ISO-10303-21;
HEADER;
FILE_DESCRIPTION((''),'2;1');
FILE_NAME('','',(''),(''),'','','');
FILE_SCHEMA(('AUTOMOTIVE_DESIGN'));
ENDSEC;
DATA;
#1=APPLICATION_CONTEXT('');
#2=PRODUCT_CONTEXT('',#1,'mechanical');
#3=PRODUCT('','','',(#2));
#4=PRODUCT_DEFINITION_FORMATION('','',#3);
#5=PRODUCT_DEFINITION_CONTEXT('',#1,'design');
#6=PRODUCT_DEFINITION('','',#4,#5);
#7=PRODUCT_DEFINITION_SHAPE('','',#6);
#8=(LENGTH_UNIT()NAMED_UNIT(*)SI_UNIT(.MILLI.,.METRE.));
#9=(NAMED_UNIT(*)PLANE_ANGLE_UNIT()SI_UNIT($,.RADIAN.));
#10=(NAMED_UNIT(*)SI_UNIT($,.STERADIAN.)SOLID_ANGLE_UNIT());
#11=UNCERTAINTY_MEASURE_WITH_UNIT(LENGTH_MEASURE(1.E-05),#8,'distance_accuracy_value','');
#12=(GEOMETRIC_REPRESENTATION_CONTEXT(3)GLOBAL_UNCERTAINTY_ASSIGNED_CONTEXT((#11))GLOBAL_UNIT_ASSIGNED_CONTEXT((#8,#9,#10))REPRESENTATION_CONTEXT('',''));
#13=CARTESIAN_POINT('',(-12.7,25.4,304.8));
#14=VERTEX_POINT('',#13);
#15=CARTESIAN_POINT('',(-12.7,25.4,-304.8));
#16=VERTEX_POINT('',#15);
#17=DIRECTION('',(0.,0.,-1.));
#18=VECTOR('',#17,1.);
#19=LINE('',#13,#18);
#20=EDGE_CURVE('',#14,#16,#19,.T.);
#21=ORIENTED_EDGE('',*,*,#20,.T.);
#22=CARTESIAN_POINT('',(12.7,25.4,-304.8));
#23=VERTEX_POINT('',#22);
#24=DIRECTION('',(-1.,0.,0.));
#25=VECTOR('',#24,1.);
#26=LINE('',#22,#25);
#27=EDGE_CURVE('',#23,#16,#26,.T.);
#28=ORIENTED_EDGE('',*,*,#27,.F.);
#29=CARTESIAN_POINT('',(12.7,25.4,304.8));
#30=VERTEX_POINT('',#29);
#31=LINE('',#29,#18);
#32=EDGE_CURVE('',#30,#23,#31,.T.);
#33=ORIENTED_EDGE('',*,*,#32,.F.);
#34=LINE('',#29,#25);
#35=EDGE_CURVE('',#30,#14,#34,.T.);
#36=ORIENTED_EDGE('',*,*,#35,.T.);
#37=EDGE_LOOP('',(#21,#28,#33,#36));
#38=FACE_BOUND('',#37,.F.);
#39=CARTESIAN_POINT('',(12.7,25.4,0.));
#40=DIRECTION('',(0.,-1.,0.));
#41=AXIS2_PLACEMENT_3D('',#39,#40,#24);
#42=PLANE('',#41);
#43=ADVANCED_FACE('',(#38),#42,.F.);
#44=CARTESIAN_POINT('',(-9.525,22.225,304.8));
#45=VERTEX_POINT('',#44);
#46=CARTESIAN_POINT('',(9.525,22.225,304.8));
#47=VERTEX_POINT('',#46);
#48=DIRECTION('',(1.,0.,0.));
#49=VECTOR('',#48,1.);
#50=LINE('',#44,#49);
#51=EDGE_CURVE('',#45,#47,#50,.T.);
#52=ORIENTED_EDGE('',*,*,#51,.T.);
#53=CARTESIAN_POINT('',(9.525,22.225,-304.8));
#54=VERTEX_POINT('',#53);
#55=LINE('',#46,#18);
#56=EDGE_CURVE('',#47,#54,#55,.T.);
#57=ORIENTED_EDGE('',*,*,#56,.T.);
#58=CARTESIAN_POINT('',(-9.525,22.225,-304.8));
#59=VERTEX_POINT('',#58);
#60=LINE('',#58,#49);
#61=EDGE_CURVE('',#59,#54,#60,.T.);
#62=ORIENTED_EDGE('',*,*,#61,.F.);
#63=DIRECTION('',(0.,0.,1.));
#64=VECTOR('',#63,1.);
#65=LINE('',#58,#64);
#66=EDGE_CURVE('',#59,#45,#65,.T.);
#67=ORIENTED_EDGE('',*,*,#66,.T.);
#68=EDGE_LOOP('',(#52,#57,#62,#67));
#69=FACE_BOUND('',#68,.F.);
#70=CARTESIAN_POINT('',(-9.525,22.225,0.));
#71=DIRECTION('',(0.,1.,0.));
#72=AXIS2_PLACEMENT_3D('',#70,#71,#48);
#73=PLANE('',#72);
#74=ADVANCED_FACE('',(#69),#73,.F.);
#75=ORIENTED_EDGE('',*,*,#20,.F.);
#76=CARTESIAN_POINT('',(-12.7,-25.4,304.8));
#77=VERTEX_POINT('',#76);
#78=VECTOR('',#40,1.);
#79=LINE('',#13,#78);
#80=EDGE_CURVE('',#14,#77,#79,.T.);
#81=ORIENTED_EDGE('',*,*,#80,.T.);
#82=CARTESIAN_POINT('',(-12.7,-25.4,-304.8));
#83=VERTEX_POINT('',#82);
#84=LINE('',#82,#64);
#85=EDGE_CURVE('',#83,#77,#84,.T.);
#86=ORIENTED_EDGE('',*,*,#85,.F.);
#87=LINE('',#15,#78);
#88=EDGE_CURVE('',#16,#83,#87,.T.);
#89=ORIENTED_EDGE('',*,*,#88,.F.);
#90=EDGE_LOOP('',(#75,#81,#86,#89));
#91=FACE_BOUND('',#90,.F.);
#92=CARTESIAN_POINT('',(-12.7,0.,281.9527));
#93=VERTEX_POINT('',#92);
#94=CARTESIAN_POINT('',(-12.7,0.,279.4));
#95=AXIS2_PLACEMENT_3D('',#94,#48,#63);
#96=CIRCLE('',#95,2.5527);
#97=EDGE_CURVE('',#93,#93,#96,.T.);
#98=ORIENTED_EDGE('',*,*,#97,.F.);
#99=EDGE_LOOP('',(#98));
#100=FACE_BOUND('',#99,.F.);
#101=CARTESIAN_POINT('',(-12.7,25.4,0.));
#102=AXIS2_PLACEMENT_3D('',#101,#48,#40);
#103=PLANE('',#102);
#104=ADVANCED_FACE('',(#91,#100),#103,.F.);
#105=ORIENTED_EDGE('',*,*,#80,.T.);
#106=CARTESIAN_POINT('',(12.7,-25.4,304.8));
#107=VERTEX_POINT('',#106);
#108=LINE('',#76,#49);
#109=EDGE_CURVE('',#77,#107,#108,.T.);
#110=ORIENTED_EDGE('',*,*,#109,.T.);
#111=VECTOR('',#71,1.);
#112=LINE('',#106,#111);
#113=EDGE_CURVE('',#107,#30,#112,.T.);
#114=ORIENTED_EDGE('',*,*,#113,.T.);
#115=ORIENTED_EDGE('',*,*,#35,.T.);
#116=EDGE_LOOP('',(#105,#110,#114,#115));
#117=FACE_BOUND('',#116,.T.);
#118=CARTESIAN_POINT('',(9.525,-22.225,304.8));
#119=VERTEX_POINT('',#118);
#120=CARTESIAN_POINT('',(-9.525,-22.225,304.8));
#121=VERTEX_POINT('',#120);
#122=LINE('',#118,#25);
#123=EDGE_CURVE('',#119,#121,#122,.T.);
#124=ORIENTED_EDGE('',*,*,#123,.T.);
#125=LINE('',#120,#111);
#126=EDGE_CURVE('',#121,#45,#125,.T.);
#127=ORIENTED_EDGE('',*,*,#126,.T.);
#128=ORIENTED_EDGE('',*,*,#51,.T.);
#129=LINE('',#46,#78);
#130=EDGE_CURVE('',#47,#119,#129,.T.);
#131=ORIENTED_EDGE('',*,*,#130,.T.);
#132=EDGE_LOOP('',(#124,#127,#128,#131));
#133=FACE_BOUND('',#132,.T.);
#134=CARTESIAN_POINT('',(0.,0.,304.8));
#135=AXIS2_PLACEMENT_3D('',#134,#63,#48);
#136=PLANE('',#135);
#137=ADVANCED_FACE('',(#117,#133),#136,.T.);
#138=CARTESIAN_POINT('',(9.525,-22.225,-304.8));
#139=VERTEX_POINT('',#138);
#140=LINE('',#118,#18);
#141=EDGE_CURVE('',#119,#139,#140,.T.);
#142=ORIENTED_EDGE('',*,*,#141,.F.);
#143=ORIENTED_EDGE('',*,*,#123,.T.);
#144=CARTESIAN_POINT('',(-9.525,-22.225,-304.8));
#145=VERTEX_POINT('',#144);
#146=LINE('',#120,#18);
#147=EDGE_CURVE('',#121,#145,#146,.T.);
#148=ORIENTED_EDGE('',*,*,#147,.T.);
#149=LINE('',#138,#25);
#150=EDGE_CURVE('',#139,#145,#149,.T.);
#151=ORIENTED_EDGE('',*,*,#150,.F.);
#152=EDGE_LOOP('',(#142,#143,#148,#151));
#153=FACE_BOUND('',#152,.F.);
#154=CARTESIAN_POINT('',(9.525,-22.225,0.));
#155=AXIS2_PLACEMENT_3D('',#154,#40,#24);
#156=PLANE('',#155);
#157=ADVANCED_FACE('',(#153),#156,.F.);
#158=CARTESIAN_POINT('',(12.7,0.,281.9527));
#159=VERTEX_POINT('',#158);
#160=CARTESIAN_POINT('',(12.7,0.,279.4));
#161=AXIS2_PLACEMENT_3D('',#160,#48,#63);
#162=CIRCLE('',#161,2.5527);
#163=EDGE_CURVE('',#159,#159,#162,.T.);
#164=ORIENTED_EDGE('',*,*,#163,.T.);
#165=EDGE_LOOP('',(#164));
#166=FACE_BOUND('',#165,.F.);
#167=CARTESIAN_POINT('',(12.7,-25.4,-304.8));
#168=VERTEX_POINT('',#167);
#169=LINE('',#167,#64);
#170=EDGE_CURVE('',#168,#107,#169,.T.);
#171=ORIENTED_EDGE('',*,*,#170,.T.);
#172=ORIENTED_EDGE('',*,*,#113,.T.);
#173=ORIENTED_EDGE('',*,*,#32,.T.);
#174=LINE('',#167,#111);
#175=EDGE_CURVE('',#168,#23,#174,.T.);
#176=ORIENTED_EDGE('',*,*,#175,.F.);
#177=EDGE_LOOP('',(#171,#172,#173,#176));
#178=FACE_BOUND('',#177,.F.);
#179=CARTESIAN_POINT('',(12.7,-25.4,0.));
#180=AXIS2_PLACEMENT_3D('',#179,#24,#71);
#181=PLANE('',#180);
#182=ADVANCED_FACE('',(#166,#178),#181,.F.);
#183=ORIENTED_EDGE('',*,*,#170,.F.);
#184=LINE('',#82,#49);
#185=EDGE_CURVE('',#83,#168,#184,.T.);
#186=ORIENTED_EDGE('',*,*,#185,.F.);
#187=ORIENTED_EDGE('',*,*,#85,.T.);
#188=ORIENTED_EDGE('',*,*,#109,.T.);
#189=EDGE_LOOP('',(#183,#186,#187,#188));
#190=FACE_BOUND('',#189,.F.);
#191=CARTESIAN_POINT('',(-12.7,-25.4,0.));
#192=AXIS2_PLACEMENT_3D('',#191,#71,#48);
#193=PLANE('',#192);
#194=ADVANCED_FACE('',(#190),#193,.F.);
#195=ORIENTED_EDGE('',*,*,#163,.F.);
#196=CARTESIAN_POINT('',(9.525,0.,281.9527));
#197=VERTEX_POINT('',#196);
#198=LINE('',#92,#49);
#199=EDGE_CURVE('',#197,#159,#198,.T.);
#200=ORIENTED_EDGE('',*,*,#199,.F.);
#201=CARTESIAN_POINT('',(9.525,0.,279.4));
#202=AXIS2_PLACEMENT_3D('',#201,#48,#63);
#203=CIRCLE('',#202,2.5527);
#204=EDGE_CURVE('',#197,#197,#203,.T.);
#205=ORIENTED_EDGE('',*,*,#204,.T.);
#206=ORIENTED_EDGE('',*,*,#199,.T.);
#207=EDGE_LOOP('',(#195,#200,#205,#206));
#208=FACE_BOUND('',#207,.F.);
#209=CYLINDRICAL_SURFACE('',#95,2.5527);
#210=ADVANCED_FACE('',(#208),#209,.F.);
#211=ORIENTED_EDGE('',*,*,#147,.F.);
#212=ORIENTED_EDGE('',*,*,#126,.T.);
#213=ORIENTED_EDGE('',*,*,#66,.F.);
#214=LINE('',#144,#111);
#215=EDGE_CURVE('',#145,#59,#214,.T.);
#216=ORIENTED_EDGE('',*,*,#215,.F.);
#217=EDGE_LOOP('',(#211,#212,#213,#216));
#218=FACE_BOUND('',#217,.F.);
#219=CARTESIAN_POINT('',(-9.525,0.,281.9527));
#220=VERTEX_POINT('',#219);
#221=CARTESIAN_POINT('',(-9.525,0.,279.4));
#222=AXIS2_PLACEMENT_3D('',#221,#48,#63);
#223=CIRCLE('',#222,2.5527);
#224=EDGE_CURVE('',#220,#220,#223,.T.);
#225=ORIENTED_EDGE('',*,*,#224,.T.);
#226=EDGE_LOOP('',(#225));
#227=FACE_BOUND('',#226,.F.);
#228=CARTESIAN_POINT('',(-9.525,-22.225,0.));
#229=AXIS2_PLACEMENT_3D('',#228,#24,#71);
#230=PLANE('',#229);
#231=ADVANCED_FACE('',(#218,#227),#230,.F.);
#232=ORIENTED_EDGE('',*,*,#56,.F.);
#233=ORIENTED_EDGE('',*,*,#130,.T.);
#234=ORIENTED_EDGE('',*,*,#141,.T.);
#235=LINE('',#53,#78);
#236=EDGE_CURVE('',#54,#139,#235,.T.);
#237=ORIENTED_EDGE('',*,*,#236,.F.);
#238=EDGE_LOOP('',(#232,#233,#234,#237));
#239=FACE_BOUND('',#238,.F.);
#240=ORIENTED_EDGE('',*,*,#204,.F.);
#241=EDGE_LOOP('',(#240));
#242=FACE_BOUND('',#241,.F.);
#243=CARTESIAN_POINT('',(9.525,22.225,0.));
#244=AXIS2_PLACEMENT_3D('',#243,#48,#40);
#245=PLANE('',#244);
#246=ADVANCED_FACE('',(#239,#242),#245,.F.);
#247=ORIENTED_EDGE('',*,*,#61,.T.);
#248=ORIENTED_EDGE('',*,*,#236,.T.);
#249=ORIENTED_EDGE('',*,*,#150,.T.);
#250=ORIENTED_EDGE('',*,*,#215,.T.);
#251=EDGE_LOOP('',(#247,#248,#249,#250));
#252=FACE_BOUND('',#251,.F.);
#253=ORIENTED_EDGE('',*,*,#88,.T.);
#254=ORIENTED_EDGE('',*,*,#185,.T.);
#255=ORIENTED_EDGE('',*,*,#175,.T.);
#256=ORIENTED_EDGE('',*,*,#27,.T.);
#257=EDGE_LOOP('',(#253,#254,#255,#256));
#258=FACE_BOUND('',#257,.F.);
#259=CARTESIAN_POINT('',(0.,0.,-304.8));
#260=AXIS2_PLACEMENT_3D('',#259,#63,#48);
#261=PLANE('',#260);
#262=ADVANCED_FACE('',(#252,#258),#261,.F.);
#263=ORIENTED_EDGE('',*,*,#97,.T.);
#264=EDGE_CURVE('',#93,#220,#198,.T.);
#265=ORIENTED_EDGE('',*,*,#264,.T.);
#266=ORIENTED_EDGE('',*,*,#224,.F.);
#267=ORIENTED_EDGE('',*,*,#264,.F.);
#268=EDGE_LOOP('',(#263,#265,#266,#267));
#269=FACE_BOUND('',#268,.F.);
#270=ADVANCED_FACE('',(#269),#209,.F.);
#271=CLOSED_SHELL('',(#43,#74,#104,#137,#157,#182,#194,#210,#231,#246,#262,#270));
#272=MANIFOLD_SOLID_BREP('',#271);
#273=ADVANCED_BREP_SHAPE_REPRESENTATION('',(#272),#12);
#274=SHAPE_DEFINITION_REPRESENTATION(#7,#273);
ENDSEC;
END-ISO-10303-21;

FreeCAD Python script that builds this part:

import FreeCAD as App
import Part
import Sketcher
Q = App.Units.Quantity


def add_polygon(sketch, points):
    """Adds a closed chain of lines whose ends are joined by coincident constraints."""
    first, n = sketch.GeometryCount, len(points)
    for a, b in zip(points, points[1:] + points[:1]):
        sketch.addGeometry(Part.LineSegment(App.Vector(*a, 0), App.Vector(*b, 0)), False)
    for i in range(n):
        sketch.addConstraint(Sketcher.Constraint("Coincident", first + i, 2, first + (i + 1) % n, 1))

doc = App.newDocument("Part")
body = doc.addObject("PartDesign::Body", "Body")

# Sketch on XY plane
sketch1 = body.newObject("Sketcher::SketchObject", "Sketch")
sketch1.AttachmentSupport = (doc.getObject("XY_Plane"), [""])
sketch1.MapMode = "FlatFace"
add_polygon(sketch1, [(-13, 25), (-13, -25), (13, -25), (13, 25)])  # lines 0-3
add_polygon(sketch1, [(-10, -22), (-10, 22), (10, 22), (10, -22)])  # lines 4-7
sketch1.addConstraint([
    Sketcher.Constraint("Vertical", 0),
    Sketcher.Constraint("Horizontal", 1),
    Sketcher.Constraint("Vertical", 2),
    Sketcher.Constraint("Horizontal", 3),
    Sketcher.Constraint("Vertical", 4),
    Sketcher.Constraint("Horizontal", 5),
    Sketcher.Constraint("Vertical", 6),
    Sketcher.Constraint("Horizontal", 7),
    Sketcher.Constraint("Symmetric", 0, 2, 2, 2, -1, 1),
    Sketcher.Constraint("Symmetric", 4, 2, 6, 2, -1, 1),
    Sketcher.Constraint("DistanceX", 1, 1, 1, 2, Q("1 in")),
    Sketcher.Constraint("DistanceY", 0, 2, 0, 1, Q("2 in")),
    Sketcher.Constraint("DistanceX", 3, 2, 4, 2, Q("0.125 in")),
    Sketcher.Constraint("DistanceY", 4, 2, 3, 2, Q("0.125 in")),
])
pad1 = body.newObject("PartDesign::Pad", "Pad")
pad1.Profile = sketch1
pad1.Length = Q("24 in")
pad1.Midplane = True

# Sketch on YZ plane
sketch2 = body.newObject("Sketcher::SketchObject", "Sketch001")
sketch2.AttachmentSupport = (doc.getObject("YZ_Plane"), [""])
sketch2.MapMode = "FlatFace"
sketch2.AttachmentOffset = App.Placement(App.Vector(0, 0, -0.5 * 25.4), App.Rotation())
sketch2.addGeometry(Part.Circle(App.Vector(0, 279.4, 0), App.Vector(0, 0, 1), 2.6), False)
sketch2.addConstraint([
    Sketcher.Constraint("PointOnObject", 0, 3, -2),
    Sketcher.Constraint("Diameter", 0, Q("0.201 in")),
    Sketcher.Constraint("DistanceY", -1, 1, 0, 3, Q("11 in")),
])
doc.recompute()
hole = body.newObject("PartDesign::Hole", "Hole")
hole.Profile = sketch2
hole.ThreadType = "None"
hole.Diameter = Q("0.201 in")
hole.DepthType = "ThroughAll"
hole.Reversed = True

doc.recompute()
